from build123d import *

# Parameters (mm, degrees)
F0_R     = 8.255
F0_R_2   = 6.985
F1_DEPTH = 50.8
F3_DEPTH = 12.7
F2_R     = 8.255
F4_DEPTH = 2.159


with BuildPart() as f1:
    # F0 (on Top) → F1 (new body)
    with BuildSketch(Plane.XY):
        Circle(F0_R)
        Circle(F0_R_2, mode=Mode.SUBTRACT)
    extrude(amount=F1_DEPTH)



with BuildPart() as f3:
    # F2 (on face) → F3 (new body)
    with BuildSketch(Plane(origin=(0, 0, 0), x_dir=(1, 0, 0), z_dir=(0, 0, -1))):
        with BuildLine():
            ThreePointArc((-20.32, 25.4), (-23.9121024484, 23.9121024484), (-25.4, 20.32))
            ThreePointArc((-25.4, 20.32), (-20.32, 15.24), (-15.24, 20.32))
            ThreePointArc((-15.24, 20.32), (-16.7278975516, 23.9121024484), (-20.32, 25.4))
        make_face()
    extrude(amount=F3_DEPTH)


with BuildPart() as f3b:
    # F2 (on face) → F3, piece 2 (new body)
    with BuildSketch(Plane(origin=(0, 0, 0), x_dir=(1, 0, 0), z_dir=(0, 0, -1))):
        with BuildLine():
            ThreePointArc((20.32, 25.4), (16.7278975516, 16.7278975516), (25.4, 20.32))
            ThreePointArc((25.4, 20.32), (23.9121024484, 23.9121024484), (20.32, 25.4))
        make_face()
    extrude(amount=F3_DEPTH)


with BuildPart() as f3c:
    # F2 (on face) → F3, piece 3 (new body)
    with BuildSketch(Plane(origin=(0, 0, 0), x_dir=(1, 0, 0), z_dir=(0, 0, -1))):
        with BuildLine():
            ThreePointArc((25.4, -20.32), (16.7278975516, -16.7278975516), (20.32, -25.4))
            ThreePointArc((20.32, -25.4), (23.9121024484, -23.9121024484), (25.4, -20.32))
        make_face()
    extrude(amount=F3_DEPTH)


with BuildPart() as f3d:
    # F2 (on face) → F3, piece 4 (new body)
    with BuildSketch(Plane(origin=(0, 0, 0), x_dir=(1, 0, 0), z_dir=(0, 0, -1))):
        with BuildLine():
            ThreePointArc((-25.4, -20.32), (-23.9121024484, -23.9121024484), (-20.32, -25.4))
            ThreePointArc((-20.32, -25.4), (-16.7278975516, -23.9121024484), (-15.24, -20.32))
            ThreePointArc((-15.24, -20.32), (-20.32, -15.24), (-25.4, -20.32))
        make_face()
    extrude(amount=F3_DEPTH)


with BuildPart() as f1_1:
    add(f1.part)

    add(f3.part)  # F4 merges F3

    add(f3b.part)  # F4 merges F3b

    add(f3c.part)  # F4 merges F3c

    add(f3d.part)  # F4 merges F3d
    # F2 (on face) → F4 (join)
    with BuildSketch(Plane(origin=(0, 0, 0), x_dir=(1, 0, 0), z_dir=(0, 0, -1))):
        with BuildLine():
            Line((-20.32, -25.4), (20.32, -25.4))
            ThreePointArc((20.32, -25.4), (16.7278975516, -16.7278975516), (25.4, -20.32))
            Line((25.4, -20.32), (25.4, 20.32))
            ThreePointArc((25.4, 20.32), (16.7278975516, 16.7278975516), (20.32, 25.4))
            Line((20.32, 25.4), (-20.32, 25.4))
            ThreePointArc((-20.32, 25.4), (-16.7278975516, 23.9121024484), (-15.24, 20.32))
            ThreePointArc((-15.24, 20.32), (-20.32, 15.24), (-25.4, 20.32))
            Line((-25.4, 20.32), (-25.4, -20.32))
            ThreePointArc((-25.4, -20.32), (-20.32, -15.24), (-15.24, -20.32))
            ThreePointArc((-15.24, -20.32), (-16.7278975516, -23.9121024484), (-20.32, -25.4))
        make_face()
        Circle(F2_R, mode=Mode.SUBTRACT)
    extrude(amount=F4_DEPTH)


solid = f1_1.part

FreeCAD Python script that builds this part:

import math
import FreeCAD as App
import Part
import Sketcher
from FreeCAD import Vector
Q = App.Units.Quantity

doc = App.newDocument("Part")
body = doc.addObject("PartDesign::Body", "Body")

sketch1 = doc.addObject("Sketcher::SketchObject", "Sketch")
body.addObject(sketch1)
sketch1.AttachmentSupport = (doc.XY_Plane, [""])
sketch1.MapMode = "FlatFace"
sketch1.addGeometry(Part.Circle(Vector(0, 0, 0), Vector(0, 0, 1), 8.255), False)
sketch1.addGeometry(Part.Circle(Vector(0, 0, 0), Vector(0, 0, 1), 6.985), False)
sketch1.addConstraint(Sketcher.Constraint("Coincident", 0, 3, -1, 1))
sketch1.addConstraint(Sketcher.Constraint("Coincident", 1, 3, -1, 1))
sketch1.addConstraint(Sketcher.Constraint("Diameter", 0, Q("0.65 in")))
sketch1.addConstraint(Sketcher.Constraint("Diameter", 1, Q("0.55 in")))
pad1 = doc.addObject("PartDesign::Pad", "Pad")
body.addObject(pad1)
pad1.Profile = sketch1
pad1.Length = Q("2 in")
body2 = doc.addObject("PartDesign::Body", "Body001")

sketch2 = doc.addObject("Sketcher::SketchObject", "Sketch001")
body2.addObject(sketch2)
sketch2.AttachmentSupport = (doc.getObject("XY_Plane001"), [""])
sketch2.MapMode = "FlatFace"
sketch2.addGeometry(Part.ArcOfCircle(Part.Circle(Vector(-20.32, -20.32, 0), Vector(0, 0, 1), 5.08), math.radians(180), math.radians(270)), False)
sketch2.addGeometry(Part.ArcOfCircle(Part.Circle(Vector(-20.32, -20.32, 0), Vector(0, 0, 1), 5.08), math.radians(0), math.radians(180)), False)
sketch2.addGeometry(Part.ArcOfCircle(Part.Circle(Vector(-20.32, -20.32, 0), Vector(0, 0, 1), 5.08), math.radians(-90), math.radians(0)), False)
sketch2.addConstraint(Sketcher.Constraint("Tangent", 0, 1, 1, 2))
sketch2.addConstraint(Sketcher.Constraint("Tangent", 1, 1, 2, 2))
sketch2.addConstraint(Sketcher.Constraint("Tangent", 2, 1, 0, 2))
sketch2.addConstraint(Sketcher.Constraint("Horizontal", 2, 3, 0, 1))
sketch2.addConstraint(Sketcher.Constraint("Horizontal", 0, 1, 1, 1))
sketch2.addConstraint(Sketcher.Constraint("Vertical", 1, 3, 2, 1))
sketch2.addConstraint(Sketcher.Constraint("Radius", 0, Q("0.2 in")))
sketch2.addConstraint(Sketcher.Constraint("DistanceX", 0, 1, -1, 1, Q("1 in")))
sketch2.addConstraint(Sketcher.Constraint("DistanceY", 2, 1, -1, 1, Q("1 in")))
pad2 = doc.addObject("PartDesign::Pad", "Pad001")
body2.addObject(pad2)
pad2.Profile = sketch2
pad2.Length = Q("0.5 in")
pad2.Reversed = True
body3 = doc.addObject("PartDesign::Body", "Body002")

sketch3 = doc.addObject("Sketcher::SketchObject", "Sketch002")
body3.addObject(sketch3)
sketch3.AttachmentSupport = (doc.getObject("XY_Plane002"), [""])
sketch3.MapMode = "FlatFace"
sketch3.addGeometry(Part.ArcOfCircle(Part.Circle(Vector(20.32, -20.32, 0), Vector(0, 0, 1), 5.08), math.radians(0), math.radians(270)), False)
sketch3.addGeometry(Part.ArcOfCircle(Part.Circle(Vector(20.32, -20.32, 0), Vector(0, 0, 1), 5.08), math.radians(-90), math.radians(0)), False)
sketch3.addConstraint(Sketcher.Constraint("Tangent", 0, 1, 1, 2))
sketch3.addConstraint(Sketcher.Constraint("Coincident", 1, 1, 0, 2))
sketch3.addConstraint(Sketcher.Constraint("Horizontal", 1, 3, 0, 1))
sketch3.addConstraint(Sketcher.Constraint("Vertical", 0, 3, 1, 1))
sketch3.addConstraint(Sketcher.Constraint("Radius", 0, Q("0.2 in")))
sketch3.addConstraint(Sketcher.Constraint("DistanceX", -1, 1, 0, 1, Q("1 in")))
sketch3.addConstraint(Sketcher.Constraint("DistanceY", 1, 1, -1, 1, Q("1 in")))
pad3 = doc.addObject("PartDesign::Pad", "Pad002")
body3.addObject(pad3)
pad3.Profile = sketch3
pad3.Length = Q("0.5 in")
pad3.Reversed = True
body4 = doc.addObject("PartDesign::Body", "Body003")

sketch4 = doc.addObject("Sketcher::SketchObject", "Sketch003")
body4.addObject(sketch4)
sketch4.AttachmentSupport = (doc.getObject("XY_Plane003"), [""])
sketch4.MapMode = "FlatFace"
sketch4.addGeometry(Part.ArcOfCircle(Part.Circle(Vector(20.32, 20.32, 0), Vector(0, 0, 1), 5.08), math.radians(90), math.radians(360)), False)
sketch4.addGeometry(Part.ArcOfCircle(Part.Circle(Vector(20.32, 20.32, 0), Vector(0, 0, 1), 5.08), math.radians(0), math.radians(90)), False)
sketch4.addConstraint(Sketcher.Constraint("Tangent", 0, 1, 1, 2))
sketch4.addConstraint(Sketcher.Constraint("Coincident", 1, 1, 0, 2))
sketch4.addConstraint(Sketcher.Constraint("Horizontal", 0, 3, 1, 1))
sketch4.addConstraint(Sketcher.Constraint("Vertical", 1, 3, 0, 1))
sketch4.addConstraint(Sketcher.Constraint("Radius", 0, Q("0.2 in")))
sketch4.addConstraint(Sketcher.Constraint("DistanceY", -1, 1, 0, 1, Q("1 in")))
sketch4.addConstraint(Sketcher.Constraint("DistanceX", -1, 1, 1, 1, Q("1 in")))
pad4 = doc.addObject("PartDesign::Pad", "Pad003")
body4.addObject(pad4)
pad4.Profile = sketch4
pad4.Length = Q("0.5 in")
pad4.Reversed = True
body5 = doc.addObject("PartDesign::Body", "Body004")

sketch5 = doc.addObject("Sketcher::SketchObject", "Sketch004")
body5.addObject(sketch5)
sketch5.AttachmentSupport = (doc.getObject("XY_Plane004"), [""])
sketch5.MapMode = "FlatFace"
sketch5.addGeometry(Part.ArcOfCircle(Part.Circle(Vector(-20.32, 20.32, 0), Vector(0, 0, 1), 5.08), math.radians(90), math.radians(180)), False)
sketch5.addGeometry(Part.ArcOfCircle(Part.Circle(Vector(-20.32, 20.32, 0), Vector(0, 0, 1), 5.08), math.radians(0), math.radians(90)), False)
sketch5.addGeometry(Part.ArcOfCircle(Part.Circle(Vector(-20.32, 20.32, 0), Vector(0, 0, 1), 5.08), math.radians(180), math.radians(360)), False)
sketch5.addConstraint(Sketcher.Constraint("Tangent", 0, 1, 1, 2))
sketch5.addConstraint(Sketcher.Constraint("Tangent", 1, 1, 2, 2))
sketch5.addConstraint(Sketcher.Constraint("Tangent", 2, 1, 0, 2))
sketch5.addConstraint(Sketcher.Constraint("Horizontal", 2, 3, 1, 1))
sketch5.addConstraint(Sketcher.Constraint("Horizontal", 1, 1, 2, 1))
sketch5.addConstraint(Sketcher.Constraint("Vertical", 2, 3, 0, 1))
sketch5.addConstraint(Sketcher.Constraint("Radius", 0, Q("0.2 in")))
sketch5.addConstraint(Sketcher.Constraint("DistanceY", -1, 1, 0, 1, Q("1 in")))
sketch5.addConstraint(Sketcher.Constraint("DistanceX", 2, 1, -1, 1, Q("1 in")))
pad5 = doc.addObject("PartDesign::Pad", "Pad004")
body5.addObject(pad5)
pad5.Profile = sketch5
pad5.Length = Q("0.5 in")
pad5.Reversed = True
body.AllowCompound = True
doc.recompute()

boolean = doc.addObject("PartDesign::Boolean", "Boolean")
body.addObject(boolean)
boolean.Type = "Fuse"
boolean.addObjects([body2])
doc.recompute()

boolean2 = doc.addObject("PartDesign::Boolean", "Boolean001")
body.addObject(boolean2)
boolean2.Type = "Fuse"
boolean2.addObjects([body3])
doc.recompute()

boolean3 = doc.addObject("PartDesign::Boolean", "Boolean002")
body.addObject(boolean3)
boolean3.Type = "Fuse"
boolean3.addObjects([body4])
doc.recompute()

boolean4 = doc.addObject("PartDesign::Boolean", "Boolean003")
body.addObject(boolean4)
boolean4.Type = "Fuse"
boolean4.addObjects([body5])

sketch6 = doc.addObject("Sketcher::SketchObject", "Sketch005")
body.addObject(sketch6)
sketch6.AttachmentSupport = (doc.XY_Plane, [""])
sketch6.MapMode = "FlatFace"
sketch6.addGeometry(Part.LineSegment(Vector(-20.32, 25.4, 0), Vector(20.32, 25.4, 0)), False)
sketch6.addGeometry(Part.ArcOfCircle(Part.Circle(Vector(20.32, 20.32, 0), Vector(0, 0, 1), 5.08), math.radians(90), math.radians(360)), False)
sketch6.addGeometry(Part.LineSegment(Vector(25.4, 20.32, 0), Vector(25.4, -20.32, 0)), False)
sketch6.addGeometry(Part.ArcOfCircle(Part.Circle(Vector(20.32, -20.32, 0), Vector(0, 0, 1), 5.08), math.radians(0), math.radians(270)), False)
sketch6.addGeometry(Part.LineSegment(Vector(20.32, -25.4, 0), Vector(-20.32, -25.4, 0)), False)
sketch6.addGeometry(Part.ArcOfCircle(Part.Circle(Vector(-20.32, -20.32, 0), Vector(0, 0, 1), 5.08), math.radians(-90), math.radians(0)), False)
sketch6.addGeometry(Part.ArcOfCircle(Part.Circle(Vector(-20.32, -20.32, 0), Vector(0, 0, 1), 5.08), math.radians(0), math.radians(180)), False)
sketch6.addGeometry(Part.LineSegment(Vector(-25.4, -20.32, 0), Vector(-25.4, 20.32, 0)), False)
sketch6.addGeometry(Part.ArcOfCircle(Part.Circle(Vector(-20.32, 20.32, 0), Vector(0, 0, 1), 5.08), math.radians(180), math.radians(360)), False)
sketch6.addGeometry(Part.ArcOfCircle(Part.Circle(Vector(-20.32, 20.32, 0), Vector(0, 0, 1), 5.08), math.radians(0), math.radians(90)), False)
sketch6.addGeometry(Part.Circle(Vector(0, 0, 0), Vector(0, 0, 1), 8.255), False)
sketch6.addConstraint(Sketcher.Constraint("Tangent", 0, 2, 1, 1))
sketch6.addConstraint(Sketcher.Constraint("Tangent", 1, 2, 2, 1))
sketch6.addConstraint(Sketcher.Constraint("Tangent", 2, 2, 3, 1))
sketch6.addConstraint(Sketcher.Constraint("Tangent", 3, 2, 4, 1))
sketch6.addConstraint(Sketcher.Constraint("Tangent", 4, 2, 5, 1))
sketch6.addConstraint(Sketcher.Constraint("Tangent", 5, 2, 6, 1))
sketch6.addConstraint(Sketcher.Constraint("Tangent", 6, 2, 7, 1))
sketch6.addConstraint(Sketcher.Constraint("Tangent", 7, 2, 8, 1))
sketch6.addConstraint(Sketcher.Constraint("Tangent", 8, 2, 9, 1))
sketch6.addConstraint(Sketcher.Constraint("Tangent", 9, 2, 0, 1))
sketch6.addConstraint(Sketcher.Constraint("Horizontal", 0))
sketch6.addConstraint(Sketcher.Constraint("Vertical", 2))
sketch6.addConstraint(Sketcher.Constraint("Horizontal", 4))
sketch6.addConstraint(Sketcher.Constraint("Vertical", 7))
sketch6.addConstraint(Sketcher.Constraint("Coincident", 10, 3, -1, 1))
sketch6.addConstraint(Sketcher.Constraint("Equal", 1, 3))
sketch6.addConstraint(Sketcher.Constraint("Equal", 3, 5))
sketch6.addConstraint(Sketcher.Constraint("Equal", 5, 6))
sketch6.addConstraint(Sketcher.Constraint("Equal", 6, 8))
sketch6.addConstraint(Sketcher.Constraint("Equal", 8, 9))
sketch6.addConstraint(Sketcher.Constraint("Symmetric", 1, 3, 5, 3, -1, 1))
sketch6.addConstraint(Sketcher.Constraint("Horizontal", 2, 2, 5, 2))
sketch6.addConstraint(Sketcher.Constraint("Horizontal", 7, 2, 8, 2))
sketch6.addConstraint(Sketcher.Constraint("Equal", 4, 2))
sketch6.addConstraint(Sketcher.Constraint("Radius", 1, Q("0.2 in")))
sketch6.addConstraint(Sketcher.Constraint("Diameter", 10, Q("0.65 in")))
sketch6.addConstraint(Sketcher.Constraint("DistanceX", 0, 1, 0, 2, Q("1.6 in")))
pad6 = doc.addObject("PartDesign::Pad", "Pad005")
body.addObject(pad6)
pad6.Profile = sketch6
pad6.Length = Q("0.085 in")
pad6.Reversed = True

doc.recompute()
